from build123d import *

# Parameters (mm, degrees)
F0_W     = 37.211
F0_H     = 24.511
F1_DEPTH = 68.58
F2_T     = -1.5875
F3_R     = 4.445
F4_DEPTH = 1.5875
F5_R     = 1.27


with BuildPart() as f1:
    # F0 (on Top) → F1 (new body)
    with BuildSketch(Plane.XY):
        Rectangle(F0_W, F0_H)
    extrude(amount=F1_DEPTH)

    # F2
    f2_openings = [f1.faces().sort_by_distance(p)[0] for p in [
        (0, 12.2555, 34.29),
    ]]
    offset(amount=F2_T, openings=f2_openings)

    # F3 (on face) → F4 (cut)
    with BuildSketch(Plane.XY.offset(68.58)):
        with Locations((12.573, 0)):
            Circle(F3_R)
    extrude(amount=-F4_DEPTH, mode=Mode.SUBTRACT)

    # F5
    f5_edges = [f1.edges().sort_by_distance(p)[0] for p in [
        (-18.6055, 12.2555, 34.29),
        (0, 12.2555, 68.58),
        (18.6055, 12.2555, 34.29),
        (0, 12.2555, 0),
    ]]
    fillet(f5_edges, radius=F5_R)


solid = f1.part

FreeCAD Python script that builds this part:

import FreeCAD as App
import Part
import Sketcher
from FreeCAD import Vector
Q = App.Units.Quantity


def edges_at(feature, points):
    """Names of the edges that pass closest to the given points."""
    edges = feature.Shape.Edges
    near = lambda p: min(range(len(edges)), key=lambda i: edges[i].distToShape(Part.Vertex(*p))[0])
    return sorted({f"Edge{near(p) + 1}" for p in points})


def faces_at(feature, points):
    """Names of the faces that lie closest to the given points."""
    faces = feature.Shape.Faces
    near = lambda p: min(range(len(faces)), key=lambda i: faces[i].distToShape(Part.Vertex(*p))[0])
    return sorted({f"Face{near(p) + 1}" for p in points})

doc = App.newDocument("Part")
params = doc.addObject("Spreadsheet::Sheet", "Params")
for row, (alias, value) in enumerate([
    ("sketch1_width", "1.465 in"),
    ("sketch1_height", "0.965 in"),
    ("pad1_length", "2.7 in"),
    ("thickness_wall", "0.0625 in"),
    ("sketch2_diameter", "0.35 in"),
    ("pocket1_length", "0.0625 in"),
    ("fillet_radius", "0.05 in"),
], start=1):
    params.set(f"A{row}", alias)
    params.set(f"B{row}", "=" + value)
    params.setAlias(f"B{row}", alias)

body = doc.addObject("PartDesign::Body", "Body")

# Sketch on XY plane
sketch1 = body.newObject("Sketcher::SketchObject", "Sketch")
sketch1.AttachmentSupport = (doc.getObject("XY_Plane"), [""])
sketch1.MapMode = "FlatFace"
sketch1.addGeometry([
    Part.LineSegment(Vector(-19, 12, 0), Vector(-19, -12, 0)),
    Part.LineSegment(Vector(-19, -12, 0), Vector(19, -12, 0)),
    Part.LineSegment(Vector(19, -12, 0), Vector(19, 12, 0)),
    Part.LineSegment(Vector(19, 12, 0), Vector(-19, 12, 0)),
], False)
sketch1.addConstraint([
    Sketcher.Constraint("Coincident", 0, 2, 1, 1),
    Sketcher.Constraint("Coincident", 1, 2, 2, 1),
    Sketcher.Constraint("Coincident", 2, 2, 3, 1),
    Sketcher.Constraint("Coincident", 3, 2, 0, 1),
    Sketcher.Constraint("Vertical", 0),
    Sketcher.Constraint("Horizontal", 1),
    Sketcher.Constraint("Vertical", 2),
    Sketcher.Constraint("Horizontal", 3),
    Sketcher.Constraint("Symmetric", 0, 2, 2, 2, -1, 1),
    Sketcher.Constraint("DistanceX", 1, 1, 1, 2, Q("1.465 in")),
    Sketcher.Constraint("DistanceY", 0, 2, 0, 1, Q("0.965 in")),
])
sketch1.setExpression("Constraints[9]", "Params.sketch1_width")
sketch1.setExpression("Constraints[10]", "Params.sketch1_height")
pad1 = body.newObject("PartDesign::Pad", "Pad")
pad1.Profile = sketch1
pad1.setExpression("Length", "Params.pad1_length")
doc.recompute()

thickness = body.newObject("PartDesign::Thickness", "Thickness")
thickness.Base = (pad1, faces_at(pad1, [(0, 12.255, 34.29)]))
thickness.setExpression("Value", "Params.thickness_wall")
thickness.Reversed = True
thickness.Join = "Arc"

# Sketch on XY plane
sketch2 = body.newObject("Sketcher::SketchObject", "Sketch001")
sketch2.AttachmentSupport = (doc.getObject("XY_Plane"), [""])
sketch2.MapMode = "FlatFace"
sketch2.AttachmentOffset = App.Placement(Vector(0, 0, 2.7 * 25.4), App.Rotation())
sketch2.addGeometry(Part.Circle(Vector(12.6, 0, 0), Vector(0, 0, 1), 4.4), False)
sketch2.addConstraint([
    Sketcher.Constraint("PointOnObject", 0, 3, -1),
    Sketcher.Constraint("Diameter", 0, Q("0.35 in")),
    Sketcher.Constraint("DistanceX", -1, 1, 0, 3, Q("0.495 in")),
])
sketch2.setExpression("Constraints[1]", "Params.sketch2_diameter")
pocket1 = body.newObject("PartDesign::Pocket", "Pocket")
pocket1.Profile = sketch2
pocket1.setExpression("Length", "Params.pocket1_length")
doc.recompute()

fillet = body.newObject("PartDesign::Fillet", "Fillet")
fillet.Base = (pocket1, edges_at(pocket1, [
    (-18.605, 12.255, 34.29),
    (0, 12.255, 68.58),
    (18.605, 12.255, 34.29),
    (0, 12.255, 0),
]))
fillet.setExpression("Radius", "Params.fillet_radius")

doc.recompute()
